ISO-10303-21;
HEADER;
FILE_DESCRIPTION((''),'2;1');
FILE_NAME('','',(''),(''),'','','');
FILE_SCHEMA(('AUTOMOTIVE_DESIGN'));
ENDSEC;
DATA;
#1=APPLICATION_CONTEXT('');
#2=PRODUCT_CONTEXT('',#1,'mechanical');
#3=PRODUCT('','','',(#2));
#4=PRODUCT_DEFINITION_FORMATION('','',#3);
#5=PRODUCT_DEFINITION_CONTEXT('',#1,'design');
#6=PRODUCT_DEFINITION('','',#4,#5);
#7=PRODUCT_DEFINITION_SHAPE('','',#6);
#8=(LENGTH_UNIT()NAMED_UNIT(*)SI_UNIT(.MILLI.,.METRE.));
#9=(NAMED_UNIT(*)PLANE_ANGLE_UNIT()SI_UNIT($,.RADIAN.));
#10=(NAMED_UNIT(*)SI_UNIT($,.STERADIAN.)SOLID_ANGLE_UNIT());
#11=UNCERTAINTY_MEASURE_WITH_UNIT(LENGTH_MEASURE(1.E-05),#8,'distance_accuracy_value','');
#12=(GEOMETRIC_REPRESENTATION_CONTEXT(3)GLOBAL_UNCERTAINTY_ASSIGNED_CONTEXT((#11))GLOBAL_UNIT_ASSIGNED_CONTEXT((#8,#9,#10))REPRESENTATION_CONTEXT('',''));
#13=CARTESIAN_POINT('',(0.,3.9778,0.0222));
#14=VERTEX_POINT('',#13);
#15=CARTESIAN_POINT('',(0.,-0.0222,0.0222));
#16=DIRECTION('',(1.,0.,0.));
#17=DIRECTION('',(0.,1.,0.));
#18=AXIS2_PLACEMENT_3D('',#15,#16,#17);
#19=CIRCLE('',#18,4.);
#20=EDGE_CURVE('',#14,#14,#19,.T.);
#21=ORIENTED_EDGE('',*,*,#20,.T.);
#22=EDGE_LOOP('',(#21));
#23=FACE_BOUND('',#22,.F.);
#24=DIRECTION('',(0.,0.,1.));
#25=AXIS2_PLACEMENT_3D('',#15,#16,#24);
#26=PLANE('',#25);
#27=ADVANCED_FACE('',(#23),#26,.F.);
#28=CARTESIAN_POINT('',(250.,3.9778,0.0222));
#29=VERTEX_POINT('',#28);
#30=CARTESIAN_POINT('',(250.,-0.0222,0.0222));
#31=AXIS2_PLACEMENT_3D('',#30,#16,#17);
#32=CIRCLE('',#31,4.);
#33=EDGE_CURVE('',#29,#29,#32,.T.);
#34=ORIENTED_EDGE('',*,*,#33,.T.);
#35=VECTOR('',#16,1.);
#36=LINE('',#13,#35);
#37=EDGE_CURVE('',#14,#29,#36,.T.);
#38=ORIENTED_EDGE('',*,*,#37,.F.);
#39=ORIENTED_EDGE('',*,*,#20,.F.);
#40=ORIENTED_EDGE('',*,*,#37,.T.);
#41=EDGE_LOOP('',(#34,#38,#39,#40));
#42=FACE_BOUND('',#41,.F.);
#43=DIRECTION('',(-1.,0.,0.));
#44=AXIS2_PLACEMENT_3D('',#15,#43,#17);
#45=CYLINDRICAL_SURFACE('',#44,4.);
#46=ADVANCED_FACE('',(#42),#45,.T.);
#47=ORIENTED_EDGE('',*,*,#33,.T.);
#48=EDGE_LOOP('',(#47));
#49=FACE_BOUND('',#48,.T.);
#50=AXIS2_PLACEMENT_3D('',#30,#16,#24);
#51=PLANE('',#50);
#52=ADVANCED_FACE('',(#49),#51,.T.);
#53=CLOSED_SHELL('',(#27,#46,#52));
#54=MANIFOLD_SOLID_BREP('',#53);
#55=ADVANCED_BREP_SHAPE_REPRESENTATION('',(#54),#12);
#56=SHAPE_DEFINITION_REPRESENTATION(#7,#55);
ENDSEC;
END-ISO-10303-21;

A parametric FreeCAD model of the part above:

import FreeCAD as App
import Part
import Sketcher
Q = App.Units.Quantity

doc = App.newDocument("Part")
body = doc.addObject("PartDesign::Body", "Body")

sketch1 = body.newObject("Sketcher::SketchObject", "Sketch")
sketch1.AttachmentSupport = (doc.getObject("YZ_Plane"), [""])
sketch1.MapMode = "FlatFace"
sketch1.addGeometry(Part.Circle(App.Vector(0, 0, 0), App.Vector(0, 0, 1), 4), False)
sketch1.addConstraint([
    Sketcher.Constraint("Diameter", 0, Q("8 mm")),
    Sketcher.Constraint("DistanceX", 0, 3, -1, 1, Q("0.0222 mm")),
    Sketcher.Constraint("DistanceY", -1, 1, 0, 3, Q("0.0222 mm")),
])
pad1 = body.newObject("PartDesign::Pad", "Pad")
pad1.Profile = sketch1
pad1.Length = 250

doc.recompute()
